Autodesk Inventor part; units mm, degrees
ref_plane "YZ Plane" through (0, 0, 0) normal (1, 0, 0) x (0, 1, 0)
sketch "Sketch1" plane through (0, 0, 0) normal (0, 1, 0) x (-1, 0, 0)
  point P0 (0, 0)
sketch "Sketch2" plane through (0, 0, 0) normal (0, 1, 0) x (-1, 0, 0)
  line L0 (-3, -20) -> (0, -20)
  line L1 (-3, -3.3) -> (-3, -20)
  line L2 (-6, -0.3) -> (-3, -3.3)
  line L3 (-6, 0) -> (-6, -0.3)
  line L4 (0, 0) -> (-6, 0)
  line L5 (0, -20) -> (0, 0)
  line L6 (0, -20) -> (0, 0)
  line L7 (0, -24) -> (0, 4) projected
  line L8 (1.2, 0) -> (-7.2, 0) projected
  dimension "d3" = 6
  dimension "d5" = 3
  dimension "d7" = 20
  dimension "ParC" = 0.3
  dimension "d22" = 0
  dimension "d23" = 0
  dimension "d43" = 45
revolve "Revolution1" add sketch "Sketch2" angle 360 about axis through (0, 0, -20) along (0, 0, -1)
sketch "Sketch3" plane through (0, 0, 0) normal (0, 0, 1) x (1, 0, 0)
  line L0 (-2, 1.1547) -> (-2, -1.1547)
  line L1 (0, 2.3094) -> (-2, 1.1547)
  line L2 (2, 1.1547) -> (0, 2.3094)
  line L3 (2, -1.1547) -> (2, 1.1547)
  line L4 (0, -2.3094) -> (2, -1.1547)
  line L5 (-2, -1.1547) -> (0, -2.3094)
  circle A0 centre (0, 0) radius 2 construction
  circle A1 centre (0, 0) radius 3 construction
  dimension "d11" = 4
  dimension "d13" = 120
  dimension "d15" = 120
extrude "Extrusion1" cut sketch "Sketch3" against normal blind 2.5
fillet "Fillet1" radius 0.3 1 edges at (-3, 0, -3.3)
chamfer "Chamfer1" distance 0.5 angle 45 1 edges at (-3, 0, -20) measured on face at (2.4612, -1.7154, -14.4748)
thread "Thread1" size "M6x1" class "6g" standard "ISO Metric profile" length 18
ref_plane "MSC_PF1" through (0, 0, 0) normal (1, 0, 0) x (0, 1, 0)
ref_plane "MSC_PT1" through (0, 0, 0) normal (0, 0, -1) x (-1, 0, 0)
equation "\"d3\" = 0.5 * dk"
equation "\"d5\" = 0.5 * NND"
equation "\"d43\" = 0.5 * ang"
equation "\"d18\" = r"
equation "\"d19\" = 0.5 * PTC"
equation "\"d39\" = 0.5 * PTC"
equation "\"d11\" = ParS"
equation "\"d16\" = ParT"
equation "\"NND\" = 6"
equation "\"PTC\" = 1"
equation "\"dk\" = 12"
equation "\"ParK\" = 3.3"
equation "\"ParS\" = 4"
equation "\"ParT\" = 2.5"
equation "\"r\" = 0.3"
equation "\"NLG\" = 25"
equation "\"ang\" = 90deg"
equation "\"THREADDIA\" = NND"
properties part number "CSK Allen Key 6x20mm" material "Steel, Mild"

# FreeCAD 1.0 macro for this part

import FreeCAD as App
import Part
import Sketcher

V = App.Vector
Q = App.Units.Quantity


def edges_at(feature, points):
    """Names of the edges that pass closest to the given points."""
    edges = feature.Shape.Edges
    near = lambda p: min(range(len(edges)), key=lambda i: edges[i].distToShape(Part.Vertex(*p))[0])
    return sorted({f"Edge{near(p) + 1}" for p in points})


def add_polygon(sketch, points):
    """Adds a closed chain of lines whose ends are joined by coincident constraints."""
    first, n = sketch.GeometryCount, len(points)
    for a, b in zip(points, points[1:] + points[:1]):
        sketch.addGeometry(Part.LineSegment(App.Vector(*a, 0), App.Vector(*b, 0)), False)
    for i in range(n):
        sketch.addConstraint(Sketcher.Constraint("Coincident", first + i, 2, first + (i + 1) % n, 1))

doc = App.newDocument("Part")
params = doc.addObject("Spreadsheet::Sheet", "Params")
for row, (alias, value) in enumerate([
    ("sketch1_width", "3 mm"),
    ("sketch1_width2", "6 mm"),
    ("sketch1_height", "20 mm"),
    ("sketch1_height2", "0.3 mm"),
    ("revolution_angle", "360 deg"),
    ("pocket1_length", "2.5 mm"),
    ("fillet_radius", "0.3 mm"),
    ("chamfer_size", "0.5 mm"),
], start=1):
    params.set(f"A{row}", alias)
    params.set(f"B{row}", "=" + value)
    params.setAlias(f"B{row}", alias)

body = doc.addObject("PartDesign::Body", "Body")

# Sketch on XZ plane
sketch1 = body.newObject("Sketcher::SketchObject", "Sketch")
sketch1.AttachmentSupport = (doc.getObject("XZ_Plane"), [""])
sketch1.MapMode = "FlatFace"
add_polygon(sketch1, [(3, -3.3), (3, -20), (0, -20), (0, 0), (6, 0), (6, -0.3)])  # lines 0-5
sketch1.addConstraint([
    Sketcher.Constraint("Vertical", 0),
    Sketcher.Constraint("Horizontal", 1),
    Sketcher.Constraint("Vertical", 2),
    Sketcher.Constraint("Horizontal", 3),
    Sketcher.Constraint("Vertical", 4),
    Sketcher.Constraint("Coincident", 2, 2, -1, 1),
    Sketcher.Constraint("DistanceX", 1, 2, 1, 1, Q("3 mm")),
    Sketcher.Constraint("DistanceX", 3, 1, 3, 2, Q("6 mm")),
    Sketcher.Constraint("DistanceY", 2, 1, 2, 2, Q("20 mm")),
    Sketcher.Constraint("DistanceY", 4, 2, 4, 1, Q("0.3 mm")),
    Sketcher.Constraint("DistanceY", 5, 2, 4, 2, Q("3 mm")),
])
sketch1.setExpression("Constraints[12]", "Params.sketch1_width")
sketch1.setExpression("Constraints[13]", "Params.sketch1_width2")
sketch1.setExpression("Constraints[14]", "Params.sketch1_height")
sketch1.setExpression("Constraints[15]", "Params.sketch1_height2")
revolution = body.newObject("PartDesign::Revolution", "Revolution")
revolution.Profile = sketch1
revolution.ReferenceAxis = (sketch1, ["V_Axis"])
revolution.setExpression("Angle", "Params.revolution_angle")

# Sketch on XY plane
sketch2 = body.newObject("Sketcher::SketchObject", "Sketch001")
sketch2.AttachmentSupport = (doc.getObject("XY_Plane"), [""])
sketch2.MapMode = "FlatFace"
add_polygon(sketch2, [(0, 2.3094), (-2, 1.1547), (-2, -1.1547), (0, -2.3094), (2, -1.1547), (2, 1.1547)])  # lines 0-5
sketch2.addConstraint([
    Sketcher.Constraint("Vertical", 1),
    Sketcher.Constraint("Vertical", 4),
    Sketcher.Constraint("Symmetric", 0, 2, 3, 2, -1, 1),
    Sketcher.Constraint("Symmetric", 2, 2, 5, 2, -1, 1),
    Sketcher.Constraint("PointOnObject", 2, 2, -2),
    Sketcher.Constraint("Parallel", 2, 5),
    Sketcher.Constraint("Horizontal", 1, 2, 3, 2),
    Sketcher.Constraint("DistanceX", 1, 2, 3, 2, Q("4 mm")),
    Sketcher.Constraint("Angle", 0, Q("-150 deg")),
    Sketcher.Constraint("DistanceY", 1, 2, 1, 1, Q("2.3094 mm")),
])
pocket1 = body.newObject("PartDesign::Pocket", "Pocket")
pocket1.Profile = sketch2
pocket1.setExpression("Length", "Params.pocket1_length")
doc.recompute()

fillet = body.newObject("PartDesign::Fillet", "Fillet")
fillet.Base = (pocket1, edges_at(pocket1, [(-3, 0, -3.3)]))
fillet.setExpression("Radius", "Params.fillet_radius")
doc.recompute()

chamfer = body.newObject("PartDesign::Chamfer", "Chamfer")
chamfer.Base = (fillet, edges_at(fillet, [(-3, 0, -20)]))
chamfer.setExpression("Size", "Params.chamfer_size")

doc.recompute()
